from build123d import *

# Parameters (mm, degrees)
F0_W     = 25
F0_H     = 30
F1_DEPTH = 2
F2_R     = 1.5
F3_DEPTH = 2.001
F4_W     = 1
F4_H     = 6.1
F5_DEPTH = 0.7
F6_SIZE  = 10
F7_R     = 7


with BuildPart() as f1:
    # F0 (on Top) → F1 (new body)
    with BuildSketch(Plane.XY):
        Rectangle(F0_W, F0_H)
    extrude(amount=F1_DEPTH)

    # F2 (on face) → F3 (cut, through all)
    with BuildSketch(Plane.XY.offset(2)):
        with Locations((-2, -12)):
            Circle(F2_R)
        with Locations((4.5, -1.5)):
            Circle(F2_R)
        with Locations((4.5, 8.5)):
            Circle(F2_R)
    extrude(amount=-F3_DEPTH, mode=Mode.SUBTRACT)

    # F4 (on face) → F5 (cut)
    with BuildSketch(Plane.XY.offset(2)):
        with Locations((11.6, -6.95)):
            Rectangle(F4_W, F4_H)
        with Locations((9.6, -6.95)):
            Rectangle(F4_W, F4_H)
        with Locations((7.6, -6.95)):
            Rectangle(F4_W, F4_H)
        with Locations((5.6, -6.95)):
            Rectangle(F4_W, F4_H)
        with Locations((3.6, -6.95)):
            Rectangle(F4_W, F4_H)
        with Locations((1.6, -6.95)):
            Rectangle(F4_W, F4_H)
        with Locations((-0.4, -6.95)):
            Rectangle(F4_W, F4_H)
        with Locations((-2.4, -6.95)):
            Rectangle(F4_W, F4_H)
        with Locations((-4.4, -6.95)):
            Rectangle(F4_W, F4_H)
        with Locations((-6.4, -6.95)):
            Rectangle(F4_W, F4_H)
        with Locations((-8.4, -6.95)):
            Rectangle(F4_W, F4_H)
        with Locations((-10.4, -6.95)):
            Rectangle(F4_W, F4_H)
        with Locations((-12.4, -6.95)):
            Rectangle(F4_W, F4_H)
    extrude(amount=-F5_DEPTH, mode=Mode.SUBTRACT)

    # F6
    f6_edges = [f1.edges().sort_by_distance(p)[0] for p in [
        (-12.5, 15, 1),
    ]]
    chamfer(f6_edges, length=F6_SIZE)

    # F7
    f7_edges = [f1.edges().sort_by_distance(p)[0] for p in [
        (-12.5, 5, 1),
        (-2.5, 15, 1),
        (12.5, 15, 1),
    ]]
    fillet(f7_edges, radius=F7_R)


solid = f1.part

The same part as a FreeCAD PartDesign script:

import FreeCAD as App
import Part
import Sketcher

V = App.Vector


def edges_at(feature, points):
    """Names of the edges that pass closest to the given points."""
    edges = feature.Shape.Edges
    near = lambda p: min(range(len(edges)), key=lambda i: edges[i].distToShape(Part.Vertex(*p))[0])
    return sorted({f"Edge{near(p) + 1}" for p in points})

doc = App.newDocument("Part")
body = doc.addObject("PartDesign::Body", "Body")

# Sketch on XY plane
sketch1 = doc.addObject("Sketcher::SketchObject", "Sketch")
body.addObject(sketch1)
sketch1.AttachmentSupport = (doc.XY_Plane, [""])
sketch1.MapMode = "FlatFace"
sketch1.addGeometry(Part.LineSegment(V(-12.5, 15, 0), V(-12.5, -15, 0)), False)
sketch1.addGeometry(Part.LineSegment(V(-12.5, -15, 0), V(12.5, -15, 0)), False)
sketch1.addGeometry(Part.LineSegment(V(12.5, -15, 0), V(12.5, 15, 0)), False)
sketch1.addGeometry(Part.LineSegment(V(12.5, 15, 0), V(-12.5, 15, 0)), False)
sketch1.addConstraint(Sketcher.Constraint("Coincident", 0, 2, 1, 1))
sketch1.addConstraint(Sketcher.Constraint("Coincident", 1, 2, 2, 1))
sketch1.addConstraint(Sketcher.Constraint("Coincident", 2, 2, 3, 1))
sketch1.addConstraint(Sketcher.Constraint("Coincident", 3, 2, 0, 1))
sketch1.addConstraint(Sketcher.Constraint("Vertical", 0))
sketch1.addConstraint(Sketcher.Constraint("Horizontal", 1))
sketch1.addConstraint(Sketcher.Constraint("Vertical", 2))
sketch1.addConstraint(Sketcher.Constraint("Horizontal", 3))
sketch1.addConstraint(Sketcher.Constraint("Symmetric", 0, 2, 2, 2, -1, 1))
sketch1.addConstraint(Sketcher.Constraint("DistanceX", 1, 1, 1, 2, 25.0))
sketch1.addConstraint(Sketcher.Constraint("DistanceY", 0, 2, 0, 1, 30.0))
pad1 = doc.addObject("PartDesign::Pad", "Pad")
body.addObject(pad1)
pad1.Profile = sketch1
pad1.Length = 2

# Sketch on XY plane
sketch2 = doc.addObject("Sketcher::SketchObject", "Sketch001")
body.addObject(sketch2)
sketch2.AttachmentSupport = (doc.XY_Plane, [""])
sketch2.MapMode = "FlatFace"
sketch2.AttachmentOffset = App.Placement(V(0, 0, 2), App.Rotation())
sketch2.addGeometry(Part.Circle(V(-2, -12, 0), V(0, 0, 1), 1.5), False)
sketch2.addGeometry(Part.Circle(V(4.5, -1.5, 0), V(0, 0, 1), 1.5), False)
sketch2.addGeometry(Part.Circle(V(4.5, 8.5, 0), V(0, 0, 1), 1.5), False)
sketch2.addConstraint(Sketcher.Constraint("Equal", 0, 1))
sketch2.addConstraint(Sketcher.Constraint("Equal", 1, 2))
sketch2.addConstraint(Sketcher.Constraint("Vertical", 1, 3, 2, 3))
sketch2.addConstraint(Sketcher.Constraint("Diameter", 0, 3.0))
sketch2.addConstraint(Sketcher.Constraint("DistanceX", 0, 3, -1, 1, 2.0))
sketch2.addConstraint(Sketcher.Constraint("DistanceY", 0, 3, -1, 1, 12.0))
sketch2.addConstraint(Sketcher.Constraint("DistanceY", 1, 3, 2, 3, 10.0))
sketch2.addConstraint(Sketcher.Constraint("DistanceX", -1, 1, 1, 3, 4.5))
sketch2.addConstraint(Sketcher.Constraint("DistanceY", 1, 3, -1, 1, 1.5))
pocket1 = doc.addObject("PartDesign::Pocket", "Pocket")
body.addObject(pocket1)
pocket1.Profile = sketch2
pocket1.Type = "ThroughAll"

# Sketch on XY plane
sketch3 = doc.addObject("Sketcher::SketchObject", "Sketch002")
body.addObject(sketch3)
sketch3.AttachmentSupport = (doc.XY_Plane, [""])
sketch3.MapMode = "FlatFace"
sketch3.AttachmentOffset = App.Placement(V(0, 0, 2), App.Rotation())
sketch3.addGeometry(Part.LineSegment(V(11.1, -3.9, 0), V(11.1, -10, 0)), False)
sketch3.addGeometry(Part.LineSegment(V(11.1, -10, 0), V(12.1, -10, 0)), False)
sketch3.addGeometry(Part.LineSegment(V(12.1, -10, 0), V(12.1, -3.9, 0)), False)
sketch3.addGeometry(Part.LineSegment(V(12.1, -3.9, 0), V(11.1, -3.9, 0)), False)
sketch3.addGeometry(Part.LineSegment(V(9.1, -3.9, 0), V(9.1, -10, 0)), False)
sketch3.addGeometry(Part.LineSegment(V(9.1, -10, 0), V(10.1, -10, 0)), False)
sketch3.addGeometry(Part.LineSegment(V(10.1, -10, 0), V(10.1, -3.9, 0)), False)
sketch3.addGeometry(Part.LineSegment(V(10.1, -3.9, 0), V(9.1, -3.9, 0)), False)
sketch3.addGeometry(Part.LineSegment(V(7.1, -3.9, 0), V(7.1, -10, 0)), False)
sketch3.addGeometry(Part.LineSegment(V(7.1, -10, 0), V(8.1, -10, 0)), False)
sketch3.addGeometry(Part.LineSegment(V(8.1, -10, 0), V(8.1, -3.9, 0)), False)
sketch3.addGeometry(Part.LineSegment(V(8.1, -3.9, 0), V(7.1, -3.9, 0)), False)
sketch3.addGeometry(Part.LineSegment(V(5.1, -3.9, 0), V(5.1, -10, 0)), False)
sketch3.addGeometry(Part.LineSegment(V(5.1, -10, 0), V(6.1, -10, 0)), False)
sketch3.addGeometry(Part.LineSegment(V(6.1, -10, 0), V(6.1, -3.9, 0)), False)
sketch3.addGeometry(Part.LineSegment(V(6.1, -3.9, 0), V(5.1, -3.9, 0)), False)
sketch3.addGeometry(Part.LineSegment(V(3.1, -3.9, 0), V(3.1, -10, 0)), False)
sketch3.addGeometry(Part.LineSegment(V(3.1, -10, 0), V(4.1, -10, 0)), False)
sketch3.addGeometry(Part.LineSegment(V(4.1, -10, 0), V(4.1, -3.9, 0)), False)
sketch3.addGeometry(Part.LineSegment(V(4.1, -3.9, 0), V(3.1, -3.9, 0)), False)
sketch3.addGeometry(Part.LineSegment(V(1.1, -3.9, 0), V(1.1, -10, 0)), False)
sketch3.addGeometry(Part.LineSegment(V(1.1, -10, 0), V(2.1, -10, 0)), False)
sketch3.addGeometry(Part.LineSegment(V(2.1, -10, 0), V(2.1, -3.9, 0)), False)
sketch3.addGeometry(Part.LineSegment(V(2.1, -3.9, 0), V(1.1, -3.9, 0)), False)
sketch3.addGeometry(Part.LineSegment(V(-0.9, -3.9, 0), V(-0.9, -10, 0)), False)
sketch3.addGeometry(Part.LineSegment(V(-0.9, -10, 0), V(0.1, -10, 0)), False)
sketch3.addGeometry(Part.LineSegment(V(0.1, -10, 0), V(0.1, -3.9, 0)), False)
sketch3.addGeometry(Part.LineSegment(V(0.1, -3.9, 0), V(-0.9, -3.9, 0)), False)
sketch3.addGeometry(Part.LineSegment(V(-2.9, -3.9, 0), V(-2.9, -10, 0)), False)
sketch3.addGeometry(Part.LineSegment(V(-2.9, -10, 0), V(-1.9, -10, 0)), False)
sketch3.addGeometry(Part.LineSegment(V(-1.9, -10, 0), V(-1.9, -3.9, 0)), False)
sketch3.addGeometry(Part.LineSegment(V(-1.9, -3.9, 0), V(-2.9, -3.9, 0)), False)
sketch3.addGeometry(Part.LineSegment(V(-4.9, -3.9, 0), V(-4.9, -10, 0)), False)
sketch3.addGeometry(Part.LineSegment(V(-4.9, -10, 0), V(-3.9, -10, 0)), False)
sketch3.addGeometry(Part.LineSegment(V(-3.9, -10, 0), V(-3.9, -3.9, 0)), False)
sketch3.addGeometry(Part.LineSegment(V(-3.9, -3.9, 0), V(-4.9, -3.9, 0)), False)
sketch3.addGeometry(Part.LineSegment(V(-6.9, -3.9, 0), V(-6.9, -10, 0)), False)
sketch3.addGeometry(Part.LineSegment(V(-6.9, -10, 0), V(-5.9, -10, 0)), False)
sketch3.addGeometry(Part.LineSegment(V(-5.9, -10, 0), V(-5.9, -3.9, 0)), False)
sketch3.addGeometry(Part.LineSegment(V(-5.9, -3.9, 0), V(-6.9, -3.9, 0)), False)
sketch3.addGeometry(Part.LineSegment(V(-8.9, -3.9, 0), V(-8.9, -10, 0)), False)
sketch3.addGeometry(Part.LineSegment(V(-8.9, -10, 0), V(-7.9, -10, 0)), False)
sketch3.addGeometry(Part.LineSegment(V(-7.9, -10, 0), V(-7.9, -3.9, 0)), False)
sketch3.addGeometry(Part.LineSegment(V(-7.9, -3.9, 0), V(-8.9, -3.9, 0)), False)
sketch3.addGeometry(Part.LineSegment(V(-10.9, -3.9, 0), V(-10.9, -10, 0)), False)
sketch3.addGeometry(Part.LineSegment(V(-10.9, -10, 0), V(-9.9, -10, 0)), False)
sketch3.addGeometry(Part.LineSegment(V(-9.9, -10, 0), V(-9.9, -3.9, 0)), False)
sketch3.addGeometry(Part.LineSegment(V(-9.9, -3.9, 0), V(-10.9, -3.9, 0)), False)
sketch3.addGeometry(Part.LineSegment(V(-12.9, -3.9, 0), V(-12.9, -10, 0)), False)
sketch3.addGeometry(Part.LineSegment(V(-12.9, -10, 0), V(-11.9, -10, 0)), False)
sketch3.addGeometry(Part.LineSegment(V(-11.9, -10, 0), V(-11.9, -3.9, 0)), False)
sketch3.addGeometry(Part.LineSegment(V(-11.9, -3.9, 0), V(-12.9, -3.9, 0)), False)
sketch3.addConstraint(Sketcher.Constraint("Coincident", 0, 2, 1, 1))
sketch3.addConstraint(Sketcher.Constraint("Coincident", 1, 2, 2, 1))
sketch3.addConstraint(Sketcher.Constraint("Coincident", 2, 2, 3, 1))
sketch3.addConstraint(Sketcher.Constraint("Coincident", 3, 2, 0, 1))
sketch3.addConstraint(Sketcher.Constraint("Coincident", 4, 2, 5, 1))
sketch3.addConstraint(Sketcher.Constraint("Coincident", 5, 2, 6, 1))
sketch3.addConstraint(Sketcher.Constraint("Coincident", 6, 2, 7, 1))
sketch3.addConstraint(Sketcher.Constraint("Coincident", 7, 2, 4, 1))
sketch3.addConstraint(Sketcher.Constraint("Coincident", 8, 2, 9, 1))
sketch3.addConstraint(Sketcher.Constraint("Coincident", 9, 2, 10, 1))
sketch3.addConstraint(Sketcher.Constraint("Coincident", 10, 2, 11, 1))
sketch3.addConstraint(Sketcher.Constraint("Coincident", 11, 2, 8, 1))
sketch3.addConstraint(Sketcher.Constraint("Coincident", 12, 2, 13, 1))
sketch3.addConstraint(Sketcher.Constraint("Coincident", 13, 2, 14, 1))
sketch3.addConstraint(Sketcher.Constraint("Coincident", 14, 2, 15, 1))
sketch3.addConstraint(Sketcher.Constraint("Coincident", 15, 2, 12, 1))
sketch3.addConstraint(Sketcher.Constraint("Coincident", 16, 2, 17, 1))
sketch3.addConstraint(Sketcher.Constraint("Coincident", 17, 2, 18, 1))
sketch3.addConstraint(Sketcher.Constraint("Coincident", 18, 2, 19, 1))
sketch3.addConstraint(Sketcher.Constraint("Coincident", 19, 2, 16, 1))
sketch3.addConstraint(Sketcher.Constraint("Coincident", 20, 2, 21, 1))
sketch3.addConstraint(Sketcher.Constraint("Coincident", 21, 2, 22, 1))
sketch3.addConstraint(Sketcher.Constraint("Coincident", 22, 2, 23, 1))
sketch3.addConstraint(Sketcher.Constraint("Coincident", 23, 2, 20, 1))
sketch3.addConstraint(Sketcher.Constraint("Coincident", 24, 2, 25, 1))
sketch3.addConstraint(Sketcher.Constraint("Coincident", 25, 2, 26, 1))
sketch3.addConstraint(Sketcher.Constraint("Coincident", 26, 2, 27, 1))
sketch3.addConstraint(Sketcher.Constraint("Coincident", 27, 2, 24, 1))
sketch3.addConstraint(Sketcher.Constraint("Coincident", 28, 2, 29, 1))
sketch3.addConstraint(Sketcher.Constraint("Coincident", 29, 2, 30, 1))
sketch3.addConstraint(Sketcher.Constraint("Coincident", 30, 2, 31, 1))
sketch3.addConstraint(Sketcher.Constraint("Coincident", 31, 2, 28, 1))
sketch3.addConstraint(Sketcher.Constraint("Coincident", 32, 2, 33, 1))
sketch3.addConstraint(Sketcher.Constraint("Coincident", 33, 2, 34, 1))
sketch3.addConstraint(Sketcher.Constraint("Coincident", 34, 2, 35, 1))
sketch3.addConstraint(Sketcher.Constraint("Coincident", 35, 2, 32, 1))
sketch3.addConstraint(Sketcher.Constraint("Coincident", 36, 2, 37, 1))
sketch3.addConstraint(Sketcher.Constraint("Coincident", 37, 2, 38, 1))
sketch3.addConstraint(Sketcher.Constraint("Coincident", 38, 2, 39, 1))
sketch3.addConstraint(Sketcher.Constraint("Coincident", 39, 2, 36, 1))
sketch3.addConstraint(Sketcher.Constraint("Coincident", 40, 2, 41, 1))
sketch3.addConstraint(Sketcher.Constraint("Coincident", 41, 2, 42, 1))
sketch3.addConstraint(Sketcher.Constraint("Coincident", 42, 2, 43, 1))
sketch3.addConstraint(Sketcher.Constraint("Coincident", 43, 2, 40, 1))
sketch3.addConstraint(Sketcher.Constraint("Coincident", 44, 2, 45, 1))
sketch3.addConstraint(Sketcher.Constraint("Coincident", 45, 2, 46, 1))
sketch3.addConstraint(Sketcher.Constraint("Coincident", 46, 2, 47, 1))
sketch3.addConstraint(Sketcher.Constraint("Coincident", 47, 2, 44, 1))
sketch3.addConstraint(Sketcher.Constraint("Coincident", 48, 2, 49, 1))
sketch3.addConstraint(Sketcher.Constraint("Coincident", 49, 2, 50, 1))
sketch3.addConstraint(Sketcher.Constraint("Coincident", 50, 2, 51, 1))
sketch3.addConstraint(Sketcher.Constraint("Coincident", 51, 2, 48, 1))
sketch3.addConstraint(Sketcher.Constraint("Vertical", 0))
sketch3.addConstraint(Sketcher.Constraint("Horizontal", 1))
sketch3.addConstraint(Sketcher.Constraint("Vertical", 2))
sketch3.addConstraint(Sketcher.Constraint("Horizontal", 3))
sketch3.addConstraint(Sketcher.Constraint("Vertical", 4))
sketch3.addConstraint(Sketcher.Constraint("Horizontal", 5))
sketch3.addConstraint(Sketcher.Constraint("Vertical", 6))
sketch3.addConstraint(Sketcher.Constraint("Horizontal", 7))
sketch3.addConstraint(Sketcher.Constraint("Vertical", 8))
sketch3.addConstraint(Sketcher.Constraint("Horizontal", 9))
sketch3.addConstraint(Sketcher.Constraint("Vertical", 10))
sketch3.addConstraint(Sketcher.Constraint("Horizontal", 11))
sketch3.addConstraint(Sketcher.Constraint("Vertical", 12))
sketch3.addConstraint(Sketcher.Constraint("Horizontal", 13))
sketch3.addConstraint(Sketcher.Constraint("Vertical", 14))
sketch3.addConstraint(Sketcher.Constraint("Horizontal", 15))
sketch3.addConstraint(Sketcher.Constraint("Vertical", 16))
sketch3.addConstraint(Sketcher.Constraint("Horizontal", 17))
sketch3.addConstraint(Sketcher.Constraint("Vertical", 18))
sketch3.addConstraint(Sketcher.Constraint("Horizontal", 19))
sketch3.addConstraint(Sketcher.Constraint("Vertical", 20))
sketch3.addConstraint(Sketcher.Constraint("Horizontal", 21))
sketch3.addConstraint(Sketcher.Constraint("Vertical", 22))
sketch3.addConstraint(Sketcher.Constraint("Horizontal", 23))
sketch3.addConstraint(Sketcher.Constraint("Vertical", 24))
sketch3.addConstraint(Sketcher.Constraint("Horizontal", 25))
sketch3.addConstraint(Sketcher.Constraint("Vertical", 26))
sketch3.addConstraint(Sketcher.Constraint("Horizontal", 27))
sketch3.addConstraint(Sketcher.Constraint("Vertical", 28))
sketch3.addConstraint(Sketcher.Constraint("Horizontal", 29))
sketch3.addConstraint(Sketcher.Constraint("Vertical", 30))
sketch3.addConstraint(Sketcher.Constraint("Horizontal", 31))
sketch3.addConstraint(Sketcher.Constraint("Vertical", 32))
sketch3.addConstraint(Sketcher.Constraint("Horizontal", 33))
sketch3.addConstraint(Sketcher.Constraint("Vertical", 34))
sketch3.addConstraint(Sketcher.Constraint("Horizontal", 35))
sketch3.addConstraint(Sketcher.Constraint("Vertical", 36))
sketch3.addConstraint(Sketcher.Constraint("Horizontal", 37))
sketch3.addConstraint(Sketcher.Constraint("Vertical", 38))
sketch3.addConstraint(Sketcher.Constraint("Horizontal", 39))
sketch3.addConstraint(Sketcher.Constraint("Vertical", 40))
sketch3.addConstraint(Sketcher.Constraint("Horizontal", 41))
sketch3.addConstraint(Sketcher.Constraint("Vertical", 42))
sketch3.addConstraint(Sketcher.Constraint("Horizontal", 43))
sketch3.addConstraint(Sketcher.Constraint("Vertical", 44))
sketch3.addConstraint(Sketcher.Constraint("Horizontal", 45))
sketch3.addConstraint(Sketcher.Constraint("Vertical", 46))
sketch3.addConstraint(Sketcher.Constraint("Horizontal", 47))
sketch3.addConstraint(Sketcher.Constraint("Vertical", 48))
sketch3.addConstraint(Sketcher.Constraint("Horizontal", 49))
sketch3.addConstraint(Sketcher.Constraint("Vertical", 50))
sketch3.addConstraint(Sketcher.Constraint("Horizontal", 51))
sketch3.addConstraint(Sketcher.Constraint("Horizontal", 1, 2, 4, 2))
sketch3.addConstraint(Sketcher.Constraint("Horizontal", 3, 2, 6, 2))
sketch3.addConstraint(Sketcher.Constraint("Horizontal", 5, 2, 8, 2))
sketch3.addConstraint(Sketcher.Constraint("Horizontal", 7, 2, 10, 2))
sketch3.addConstraint(Sketcher.Constraint("Horizontal", 9, 2, 12, 2))
sketch3.addConstraint(Sketcher.Constraint("Horizontal", 11, 2, 14, 2))
sketch3.addConstraint(Sketcher.Constraint("Horizontal", 13, 2, 16, 2))
sketch3.addConstraint(Sketcher.Constraint("Horizontal", 15, 2, 18, 2))
sketch3.addConstraint(Sketcher.Constraint("Horizontal", 17, 2, 20, 2))
sketch3.addConstraint(Sketcher.Constraint("Horizontal", 19, 2, 22, 2))
sketch3.addConstraint(Sketcher.Constraint("Horizontal", 21, 2, 24, 2))
sketch3.addConstraint(Sketcher.Constraint("Horizontal", 23, 2, 26, 2))
sketch3.addConstraint(Sketcher.Constraint("Horizontal", 25, 2, 28, 2))
sketch3.addConstraint(Sketcher.Constraint("Horizontal", 27, 2, 30, 2))
sketch3.addConstraint(Sketcher.Constraint("Horizontal", 29, 2, 32, 2))
sketch3.addConstraint(Sketcher.Constraint("Horizontal", 31, 2, 34, 2))
sketch3.addConstraint(Sketcher.Constraint("Horizontal", 33, 2, 36, 2))
sketch3.addConstraint(Sketcher.Constraint("Horizontal", 35, 2, 38, 2))
sketch3.addConstraint(Sketcher.Constraint("Horizontal", 37, 2, 40, 2))
sketch3.addConstraint(Sketcher.Constraint("Horizontal", 39, 2, 42, 2))
sketch3.addConstraint(Sketcher.Constraint("Horizontal", 41, 2, 44, 2))
sketch3.addConstraint(Sketcher.Constraint("Horizontal", 43, 2, 46, 2))
sketch3.addConstraint(Sketcher.Constraint("Horizontal", 45, 2, 48, 2))
sketch3.addConstraint(Sketcher.Constraint("Horizontal", 47, 2, 50, 2))
sketch3.addConstraint(Sketcher.Constraint("Equal", 3, 5))
sketch3.addConstraint(Sketcher.Constraint("Equal", 7, 9))
sketch3.addConstraint(Sketcher.Constraint("Equal", 11, 13))
sketch3.addConstraint(Sketcher.Constraint("Equal", 15, 17))
sketch3.addConstraint(Sketcher.Constraint("Equal", 19, 21))
sketch3.addConstraint(Sketcher.Constraint("Equal", 23, 25))
sketch3.addConstraint(Sketcher.Constraint("Equal", 27, 29))
sketch3.addConstraint(Sketcher.Constraint("Equal", 31, 33))
sketch3.addConstraint(Sketcher.Constraint("Equal", 35, 37))
sketch3.addConstraint(Sketcher.Constraint("Equal", 39, 41))
sketch3.addConstraint(Sketcher.Constraint("Equal", 43, 45))
sketch3.addConstraint(Sketcher.Constraint("Equal", 47, 49))
sketch3.addConstraint(Sketcher.Constraint("DistanceX", 1, 1, 1, 2, 1.0))
sketch3.addConstraint(Sketcher.Constraint("DistanceY", 0, 2, 0, 1, 6.1))
sketch3.addConstraint(Sketcher.Constraint("DistanceY", 0, 2, -1, 1, 10.0))
sketch3.addConstraint(Sketcher.Constraint("DistanceX", 4, 2, 0, 2, 2.0))
sketch3.addConstraint(Sketcher.Constraint("DistanceX", 8, 2, 4, 2, 2.0))
sketch3.addConstraint(Sketcher.Constraint("DistanceX", 12, 2, 8, 2, 2.0))
sketch3.addConstraint(Sketcher.Constraint("DistanceX", 16, 2, 12, 2, 2.0))
sketch3.addConstraint(Sketcher.Constraint("DistanceX", 20, 2, 16, 2, 2.0))
sketch3.addConstraint(Sketcher.Constraint("DistanceX", 24, 2, 20, 2, 2.0))
sketch3.addConstraint(Sketcher.Constraint("DistanceX", 28, 2, 24, 2, 2.0))
sketch3.addConstraint(Sketcher.Constraint("DistanceX", 32, 2, 28, 2, 2.0))
sketch3.addConstraint(Sketcher.Constraint("DistanceX", 36, 2, 32, 2, 2.0))
sketch3.addConstraint(Sketcher.Constraint("DistanceX", 40, 2, 36, 2, 2.0))
sketch3.addConstraint(Sketcher.Constraint("DistanceX", 44, 2, 40, 2, 2.0))
sketch3.addConstraint(Sketcher.Constraint("DistanceX", 48, 2, 44, 2, 2.0))
sketch3.addConstraint(Sketcher.Constraint("DistanceX", -1, 1, 0, 2, 11.1))
pocket2 = doc.addObject("PartDesign::Pocket", "Pocket001")
body.addObject(pocket2)
pocket2.Profile = sketch3
pocket2.Length = 0.7
doc.recompute()

chamfer = doc.addObject("PartDesign::Chamfer", "Chamfer")
body.addObject(chamfer)
chamfer.Base = (pocket2, edges_at(pocket2, [(-12.5, 15, 1)]))
chamfer.Size = 10
doc.recompute()

fillet = doc.addObject("PartDesign::Fillet", "Fillet")
body.addObject(fillet)
fillet.Base = (chamfer, edges_at(chamfer, [(-12.5, 5, 1), (-2.5, 15, 1), (12.5, 15, 1)]))
fillet.Radius = 7

doc.recompute()
